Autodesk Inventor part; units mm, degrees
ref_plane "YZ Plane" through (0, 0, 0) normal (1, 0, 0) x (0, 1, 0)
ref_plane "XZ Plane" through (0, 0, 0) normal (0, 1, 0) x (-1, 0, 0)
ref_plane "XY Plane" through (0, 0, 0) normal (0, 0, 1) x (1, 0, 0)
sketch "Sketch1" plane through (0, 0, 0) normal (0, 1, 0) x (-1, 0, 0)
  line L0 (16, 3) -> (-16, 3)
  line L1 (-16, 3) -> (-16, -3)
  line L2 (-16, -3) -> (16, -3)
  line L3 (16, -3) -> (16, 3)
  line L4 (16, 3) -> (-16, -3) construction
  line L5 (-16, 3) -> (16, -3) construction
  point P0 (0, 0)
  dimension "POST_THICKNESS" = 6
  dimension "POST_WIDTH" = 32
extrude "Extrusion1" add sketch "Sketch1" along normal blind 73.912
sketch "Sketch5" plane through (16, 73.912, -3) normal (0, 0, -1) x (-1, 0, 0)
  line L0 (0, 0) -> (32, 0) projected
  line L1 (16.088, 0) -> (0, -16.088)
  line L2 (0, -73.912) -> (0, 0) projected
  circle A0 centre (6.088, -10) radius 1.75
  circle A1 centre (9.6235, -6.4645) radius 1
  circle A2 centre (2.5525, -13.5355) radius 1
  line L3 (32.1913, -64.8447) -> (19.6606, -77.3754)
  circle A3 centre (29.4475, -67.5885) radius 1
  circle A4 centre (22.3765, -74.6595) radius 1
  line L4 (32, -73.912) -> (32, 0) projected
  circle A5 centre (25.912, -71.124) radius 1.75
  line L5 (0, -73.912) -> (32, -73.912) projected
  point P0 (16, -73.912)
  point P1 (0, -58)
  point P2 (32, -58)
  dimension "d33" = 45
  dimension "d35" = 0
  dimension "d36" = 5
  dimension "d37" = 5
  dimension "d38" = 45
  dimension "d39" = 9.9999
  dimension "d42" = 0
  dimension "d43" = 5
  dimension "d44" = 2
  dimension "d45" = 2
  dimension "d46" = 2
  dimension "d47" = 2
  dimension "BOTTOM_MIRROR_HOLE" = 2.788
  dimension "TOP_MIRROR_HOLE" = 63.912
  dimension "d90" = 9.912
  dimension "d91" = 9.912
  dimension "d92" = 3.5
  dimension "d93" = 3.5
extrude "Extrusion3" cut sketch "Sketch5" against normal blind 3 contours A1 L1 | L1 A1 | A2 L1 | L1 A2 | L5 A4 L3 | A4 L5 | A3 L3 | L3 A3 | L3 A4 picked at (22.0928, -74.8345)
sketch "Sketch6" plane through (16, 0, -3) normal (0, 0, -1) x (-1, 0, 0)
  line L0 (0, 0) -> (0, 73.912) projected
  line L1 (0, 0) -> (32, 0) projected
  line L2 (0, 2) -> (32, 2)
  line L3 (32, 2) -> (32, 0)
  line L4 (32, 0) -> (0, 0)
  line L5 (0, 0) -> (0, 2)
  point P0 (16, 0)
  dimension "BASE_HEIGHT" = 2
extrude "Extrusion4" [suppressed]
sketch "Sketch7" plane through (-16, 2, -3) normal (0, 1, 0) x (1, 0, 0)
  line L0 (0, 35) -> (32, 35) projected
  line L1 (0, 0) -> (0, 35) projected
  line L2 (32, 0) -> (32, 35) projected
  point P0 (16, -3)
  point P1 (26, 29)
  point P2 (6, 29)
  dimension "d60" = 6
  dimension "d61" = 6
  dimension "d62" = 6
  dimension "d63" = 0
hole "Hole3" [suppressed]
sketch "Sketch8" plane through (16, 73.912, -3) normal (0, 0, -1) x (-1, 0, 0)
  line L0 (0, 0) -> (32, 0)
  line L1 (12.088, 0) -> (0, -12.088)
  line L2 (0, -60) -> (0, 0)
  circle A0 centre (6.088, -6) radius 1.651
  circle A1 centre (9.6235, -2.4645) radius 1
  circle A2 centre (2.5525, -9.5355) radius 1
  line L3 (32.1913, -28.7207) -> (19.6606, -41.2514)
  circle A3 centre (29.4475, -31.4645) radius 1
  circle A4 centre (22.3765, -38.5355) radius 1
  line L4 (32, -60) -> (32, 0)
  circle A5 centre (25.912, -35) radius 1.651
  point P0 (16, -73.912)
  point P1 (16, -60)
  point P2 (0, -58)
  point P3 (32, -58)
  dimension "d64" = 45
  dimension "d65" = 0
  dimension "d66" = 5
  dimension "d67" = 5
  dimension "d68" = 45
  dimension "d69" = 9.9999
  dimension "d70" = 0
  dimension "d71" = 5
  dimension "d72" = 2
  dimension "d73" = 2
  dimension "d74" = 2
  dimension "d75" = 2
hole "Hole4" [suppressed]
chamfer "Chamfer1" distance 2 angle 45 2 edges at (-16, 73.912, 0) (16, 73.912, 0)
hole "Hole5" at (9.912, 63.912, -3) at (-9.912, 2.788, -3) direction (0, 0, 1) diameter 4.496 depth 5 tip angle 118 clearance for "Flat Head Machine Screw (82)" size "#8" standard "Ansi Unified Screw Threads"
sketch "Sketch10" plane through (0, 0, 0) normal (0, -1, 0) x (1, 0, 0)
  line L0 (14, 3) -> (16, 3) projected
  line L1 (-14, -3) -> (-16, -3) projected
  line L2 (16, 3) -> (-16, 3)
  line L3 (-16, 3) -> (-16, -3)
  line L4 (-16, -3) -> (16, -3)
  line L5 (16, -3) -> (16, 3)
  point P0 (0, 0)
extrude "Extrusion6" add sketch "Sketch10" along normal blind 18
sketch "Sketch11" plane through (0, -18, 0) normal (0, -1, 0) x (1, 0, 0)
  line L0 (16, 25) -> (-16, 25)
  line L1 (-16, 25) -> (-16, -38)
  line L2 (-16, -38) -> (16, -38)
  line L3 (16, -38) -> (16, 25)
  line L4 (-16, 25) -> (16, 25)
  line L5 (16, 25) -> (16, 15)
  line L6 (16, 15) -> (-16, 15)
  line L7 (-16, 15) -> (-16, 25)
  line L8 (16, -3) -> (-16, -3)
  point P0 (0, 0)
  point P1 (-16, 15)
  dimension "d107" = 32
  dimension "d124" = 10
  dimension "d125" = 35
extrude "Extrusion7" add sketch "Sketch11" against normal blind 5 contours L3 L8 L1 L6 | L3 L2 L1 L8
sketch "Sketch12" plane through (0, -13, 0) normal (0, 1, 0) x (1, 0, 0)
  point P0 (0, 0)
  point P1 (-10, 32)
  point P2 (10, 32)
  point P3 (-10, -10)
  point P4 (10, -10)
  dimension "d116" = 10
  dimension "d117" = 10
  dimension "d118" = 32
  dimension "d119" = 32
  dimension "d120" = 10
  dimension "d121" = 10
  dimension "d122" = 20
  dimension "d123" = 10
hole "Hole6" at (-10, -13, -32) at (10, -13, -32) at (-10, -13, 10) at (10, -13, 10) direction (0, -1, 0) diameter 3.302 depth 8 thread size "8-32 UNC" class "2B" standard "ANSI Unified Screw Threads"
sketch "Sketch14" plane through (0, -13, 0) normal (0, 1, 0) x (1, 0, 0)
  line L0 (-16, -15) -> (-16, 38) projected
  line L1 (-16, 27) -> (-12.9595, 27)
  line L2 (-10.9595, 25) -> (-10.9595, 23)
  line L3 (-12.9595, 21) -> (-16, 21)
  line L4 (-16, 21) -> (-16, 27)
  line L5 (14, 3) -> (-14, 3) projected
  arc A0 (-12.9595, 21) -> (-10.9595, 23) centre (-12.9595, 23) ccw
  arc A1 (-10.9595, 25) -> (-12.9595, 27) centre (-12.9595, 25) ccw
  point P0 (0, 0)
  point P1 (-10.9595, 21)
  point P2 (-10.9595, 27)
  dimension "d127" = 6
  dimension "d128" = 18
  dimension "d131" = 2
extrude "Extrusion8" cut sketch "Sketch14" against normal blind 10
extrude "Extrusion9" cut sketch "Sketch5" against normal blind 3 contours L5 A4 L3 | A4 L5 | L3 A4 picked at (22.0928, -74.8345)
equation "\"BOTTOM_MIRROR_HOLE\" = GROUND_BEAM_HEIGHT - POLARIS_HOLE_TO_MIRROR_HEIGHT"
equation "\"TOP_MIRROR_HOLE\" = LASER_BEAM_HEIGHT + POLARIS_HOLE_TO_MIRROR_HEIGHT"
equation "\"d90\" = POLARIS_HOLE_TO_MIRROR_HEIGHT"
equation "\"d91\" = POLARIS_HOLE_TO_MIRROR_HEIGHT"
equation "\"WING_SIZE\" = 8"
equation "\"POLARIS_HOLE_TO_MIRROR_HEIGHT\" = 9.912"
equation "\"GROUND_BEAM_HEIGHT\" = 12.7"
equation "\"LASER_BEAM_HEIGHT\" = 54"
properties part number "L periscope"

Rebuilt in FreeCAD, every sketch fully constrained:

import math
import FreeCAD as App
import Part
import Sketcher

V = App.Vector


def edges_at(feature, points):
    """Names of the edges that pass closest to the given points."""
    edges = feature.Shape.Edges
    near = lambda p: min(range(len(edges)), key=lambda i: edges[i].distToShape(Part.Vertex(*p))[0])
    return sorted({f"Edge{near(p) + 1}" for p in points})

doc = App.newDocument("Part")
body = doc.addObject("PartDesign::Body", "Body")

sketch1 = body.newObject("Sketcher::SketchObject", "Sketch")
sketch1.AttachmentSupport = (doc.getObject("XZ_Plane"), [""])
sketch1.MapMode = "FlatFace"
sketch1.addGeometry(Part.LineSegment(V(-16, -3, 0), V(-16, 3, 0)), False)
sketch1.addGeometry(Part.LineSegment(V(-16, 3, 0), V(16, 3, 0)), False)
sketch1.addGeometry(Part.LineSegment(V(16, 3, 0), V(16, -3, 0)), False)
sketch1.addGeometry(Part.LineSegment(V(16, -3, 0), V(-16, -3, 0)), False)
sketch1.addConstraint(Sketcher.Constraint("Coincident", 0, 2, 1, 1))
sketch1.addConstraint(Sketcher.Constraint("Coincident", 1, 2, 2, 1))
sketch1.addConstraint(Sketcher.Constraint("Coincident", 2, 2, 3, 1))
sketch1.addConstraint(Sketcher.Constraint("Coincident", 3, 2, 0, 1))
sketch1.addConstraint(Sketcher.Constraint("Vertical", 0))
sketch1.addConstraint(Sketcher.Constraint("Horizontal", 1))
sketch1.addConstraint(Sketcher.Constraint("Vertical", 2))
sketch1.addConstraint(Sketcher.Constraint("Horizontal", 3))
sketch1.addConstraint(Sketcher.Constraint("Symmetric", 0, 2, 2, 2, -1, 1))
sketch1.addConstraint(Sketcher.Constraint("DistanceX", 1, 1, 1, 2, 32.0))
sketch1.addConstraint(Sketcher.Constraint("DistanceY", 0, 1, 0, 2, 6.0))
pad1 = body.newObject("PartDesign::Pad", "Pad")
pad1.Profile = sketch1
pad1.Length = 73.912
pad1.Reversed = True

sketch2 = body.newObject("Sketcher::SketchObject", "Sketch001")
sketch2.AttachmentSupport = (doc.getObject("XY_Plane"), [""])
sketch2.MapMode = "FlatFace"
sketch2.AttachmentOffset = App.Placement(V(0, 0, -3), App.Rotation())
sketch2.addGeometry(Part.Circle(V(6.3765, 67.4475, 0), V(0, 0, 1), 1), False)
sketch2.addGeometry(Part.Circle(V(13.4475, 60.3765, 0), V(0, 0, 1), 1), False)
sketch2.addGeometry(Part.Circle(V(-6.3765, -0.7475, 0), V(0, 0, 1), 1), False)
sketch2.addGeometry(Part.Circle(V(-13.4475, 6.3235, 0), V(0, 0, 1), 1), False)
sketch2.addConstraint(Sketcher.Constraint("Equal", 0, 1))
sketch2.addConstraint(Sketcher.Constraint("Equal", 1, 2))
sketch2.addConstraint(Sketcher.Constraint("Equal", 2, 3))
sketch2.addConstraint(Sketcher.Constraint("Diameter", 0, 2.0))
sketch2.addConstraint(Sketcher.Constraint("DistanceX", 0, 3, 1, 3, 7.071))
sketch2.addConstraint(Sketcher.Constraint("DistanceY", 1, 3, 0, 3, 7.071))
sketch2.addConstraint(Sketcher.Constraint("DistanceX", 2, 3, 1, 3, 19.824))
sketch2.addConstraint(Sketcher.Constraint("DistanceY", 2, 3, 1, 3, 61.124))
sketch2.addConstraint(Sketcher.Constraint("DistanceX", 3, 3, 2, 3, 7.071))
sketch2.addConstraint(Sketcher.Constraint("DistanceY", 2, 3, 3, 3, 7.071))
sketch2.addConstraint(Sketcher.Constraint("DistanceX", -1, 1, 0, 3, 6.3765))
sketch2.addConstraint(Sketcher.Constraint("DistanceY", -1, 1, 0, 3, 67.4475))
pocket1 = body.newObject("PartDesign::Pocket", "Pocket")
pocket1.Profile = sketch2
pocket1.Length = 3
pocket1.Reversed = True
doc.recompute()

chamfer = body.newObject("PartDesign::Chamfer", "Chamfer")
chamfer.Base = (pocket1, edges_at(pocket1, [(-16, 73.912, 0), (16, 73.912, 0)]))
chamfer.Size = 2

sketch3 = body.newObject("Sketcher::SketchObject", "Sketch002")
sketch3.AttachmentSupport = (doc.getObject("XY_Plane"), [""])
sketch3.MapMode = "FlatFace"
sketch3.AttachmentOffset = App.Placement(V(0, 0, -3), App.Rotation())
sketch3.addGeometry(Part.Circle(V(9.912, 63.912, 0), V(0, 0, 1), 2.248), False)
sketch3.addGeometry(Part.Circle(V(-9.912, 2.788, 0), V(0, 0, 1), 2.248), False)
sketch3.addConstraint(Sketcher.Constraint("Equal", 0, 1))
sketch3.addConstraint(Sketcher.Constraint("Diameter", 0, 4.496))
sketch3.addConstraint(Sketcher.Constraint("DistanceX", -1, 1, 0, 3, 9.912))
sketch3.addConstraint(Sketcher.Constraint("DistanceY", -1, 1, 0, 3, 63.912))
sketch3.addConstraint(Sketcher.Constraint("DistanceX", 1, 3, -1, 1, 9.912))
sketch3.addConstraint(Sketcher.Constraint("DistanceY", -1, 1, 1, 3, 2.788))
doc.recompute()
hole = body.newObject("PartDesign::Hole", "Hole")
hole.Profile = sketch3
hole.ThreadType = "None"
hole.Diameter = 4.496
hole.DepthType = "Dimension"
hole.Depth = 5
hole.DrillPoint = "Angled"
hole.DrillPointAngle = 118
hole.Reversed = True

sketch4 = body.newObject("Sketcher::SketchObject", "Sketch003")
sketch4.AttachmentSupport = (doc.getObject("XZ_Plane"), [""])
sketch4.MapMode = "FlatFace"
sketch4.addGeometry(Part.LineSegment(V(16, 3, 0), V(-16, 3, 0)), False)
sketch4.addGeometry(Part.LineSegment(V(-16, 3, 0), V(-16, -3, 0)), False)
sketch4.addGeometry(Part.LineSegment(V(-16, -3, 0), V(16, -3, 0)), False)
sketch4.addGeometry(Part.LineSegment(V(16, -3, 0), V(16, 3, 0)), False)
sketch4.addConstraint(Sketcher.Constraint("Coincident", 0, 2, 1, 1))
sketch4.addConstraint(Sketcher.Constraint("Coincident", 1, 2, 2, 1))
sketch4.addConstraint(Sketcher.Constraint("Coincident", 2, 2, 3, 1))
sketch4.addConstraint(Sketcher.Constraint("Coincident", 3, 2, 0, 1))
sketch4.addConstraint(Sketcher.Constraint("Horizontal", 0))
sketch4.addConstraint(Sketcher.Constraint("Vertical", 1))
sketch4.addConstraint(Sketcher.Constraint("Horizontal", 2))
sketch4.addConstraint(Sketcher.Constraint("Vertical", 3))
sketch4.addConstraint(Sketcher.Constraint("Symmetric", 0, 2, 2, 2, -1, 1))
sketch4.addConstraint(Sketcher.Constraint("DistanceX", 0, 2, 0, 1, 32.0))
sketch4.addConstraint(Sketcher.Constraint("DistanceY", 1, 2, 1, 1, 6.0))
pad2 = body.newObject("PartDesign::Pad", "Pad001")
pad2.Profile = sketch4
pad2.Length = 18

sketch5 = body.newObject("Sketcher::SketchObject", "Sketch004")
sketch5.AttachmentSupport = (doc.getObject("XZ_Plane"), [""])
sketch5.MapMode = "FlatFace"
sketch5.AttachmentOffset = App.Placement(V(0, 0, 18), App.Rotation())
sketch5.addGeometry(Part.LineSegment(V(16, 15, 0), V(-16, 15, 0)), False)
sketch5.addGeometry(Part.LineSegment(V(-16, 15, 0), V(-16, -38, 0)), False)
sketch5.addGeometry(Part.LineSegment(V(-16, -38, 0), V(16, -38, 0)), False)
sketch5.addGeometry(Part.LineSegment(V(16, -38, 0), V(16, 15, 0)), False)
sketch5.addConstraint(Sketcher.Constraint("Coincident", 0, 2, 1, 1))
sketch5.addConstraint(Sketcher.Constraint("Coincident", 1, 2, 2, 1))
sketch5.addConstraint(Sketcher.Constraint("Coincident", 2, 2, 3, 1))
sketch5.addConstraint(Sketcher.Constraint("Coincident", 3, 2, 0, 1))
sketch5.addConstraint(Sketcher.Constraint("Horizontal", 0))
sketch5.addConstraint(Sketcher.Constraint("Vertical", 1))
sketch5.addConstraint(Sketcher.Constraint("Horizontal", 2))
sketch5.addConstraint(Sketcher.Constraint("Vertical", 3))
sketch5.addConstraint(Sketcher.Constraint("DistanceX", 0, 2, 0, 1, 32.0))
sketch5.addConstraint(Sketcher.Constraint("DistanceY", 1, 2, 1, 1, 53.0))
sketch5.addConstraint(Sketcher.Constraint("DistanceX", 0, 2, -1, 1, 16.0))
sketch5.addConstraint(Sketcher.Constraint("DistanceY", -1, 1, 0, 2, 15.0))
pad3 = body.newObject("PartDesign::Pad", "Pad002")
pad3.Profile = sketch5
pad3.Length = 5
pad3.Reversed = True

sketch6 = body.newObject("Sketcher::SketchObject", "Sketch005")
sketch6.AttachmentSupport = (doc.getObject("XZ_Plane"), [""])
sketch6.MapMode = "FlatFace"
sketch6.AttachmentOffset = App.Placement(V(0, 0, 13), App.Rotation())
sketch6.addGeometry(Part.Circle(V(-10, -32, 0), V(0, 0, 1), 1.651), False)
sketch6.addGeometry(Part.Circle(V(10, -32, 0), V(0, 0, 1), 1.651), False)
sketch6.addGeometry(Part.Circle(V(-10, 10, 0), V(0, 0, 1), 1.651), False)
sketch6.addGeometry(Part.Circle(V(10, 10, 0), V(0, 0, 1), 1.651), False)
sketch6.addConstraint(Sketcher.Constraint("Equal", 0, 1))
sketch6.addConstraint(Sketcher.Constraint("Equal", 1, 2))
sketch6.addConstraint(Sketcher.Constraint("Equal", 2, 3))
sketch6.addConstraint(Sketcher.Constraint("Symmetric", 0, 3, 1, 3, -2))
sketch6.addConstraint(Sketcher.Constraint("Symmetric", 2, 3, 3, 3, -2))
sketch6.addConstraint(Sketcher.Constraint("Vertical", 0, 3, 2, 3))
sketch6.addConstraint(Sketcher.Constraint("Diameter", 0, 3.302))
sketch6.addConstraint(Sketcher.Constraint("DistanceX", 0, 3, -1, 1, 10.0))
sketch6.addConstraint(Sketcher.Constraint("DistanceY", 0, 3, -1, 1, 32.0))
sketch6.addConstraint(Sketcher.Constraint("DistanceY", -1, 1, 2, 3, 10.0))
doc.recompute()
hole2 = body.newObject("PartDesign::Hole", "Hole001")
hole2.Profile = sketch6
hole2.ThreadType = "None"
hole2.Diameter = 3.302
hole2.DepthType = "Dimension"
hole2.Depth = 8
hole2.DrillPoint = "Flat"
hole2.Reversed = True

sketch7 = body.newObject("Sketcher::SketchObject", "Sketch006")
sketch7.AttachmentSupport = (doc.getObject("XZ_Plane"), [""])
sketch7.MapMode = "FlatFace"
sketch7.AttachmentOffset = App.Placement(V(0, 0, 13), App.Rotation())
sketch7.addGeometry(Part.LineSegment(V(-16, -27, 0), V(-16, -21, 0)), False)
sketch7.addGeometry(Part.LineSegment(V(-16, -21, 0), V(-12.9595, -21, 0)), False)
sketch7.addGeometry(Part.ArcOfCircle(Part.Circle(V(-12.9595, -23, 0), V(0, 0, 1), 2), math.radians(0), math.radians(90)), False)
sketch7.addGeometry(Part.LineSegment(V(-10.9595, -23, 0), V(-10.9595, -25, 0)), False)
sketch7.addGeometry(Part.ArcOfCircle(Part.Circle(V(-12.9595, -25, 0), V(0, 0, 1), 2), math.radians(-90), math.radians(0)), False)
sketch7.addGeometry(Part.LineSegment(V(-12.9595, -27, 0), V(-16, -27, 0)), False)
sketch7.addConstraint(Sketcher.Constraint("Coincident", 0, 2, 1, 1))
sketch7.addConstraint(Sketcher.Constraint("Tangent", 1, 2, 2, 2))
sketch7.addConstraint(Sketcher.Constraint("Tangent", 2, 1, 3, 1))
sketch7.addConstraint(Sketcher.Constraint("Tangent", 3, 2, 4, 2))
sketch7.addConstraint(Sketcher.Constraint("Tangent", 4, 1, 5, 1))
sketch7.addConstraint(Sketcher.Constraint("Coincident", 5, 2, 0, 1))
sketch7.addConstraint(Sketcher.Constraint("Vertical", 0))
sketch7.addConstraint(Sketcher.Constraint("Horizontal", 1))
sketch7.addConstraint(Sketcher.Constraint("Vertical", 3))
sketch7.addConstraint(Sketcher.Constraint("Horizontal", 5))
sketch7.addConstraint(Sketcher.Constraint("Equal", 2, 4))
sketch7.addConstraint(Sketcher.Constraint("Radius", 2, 2.0))
sketch7.addConstraint(Sketcher.Constraint("DistanceY", 0, 1, 0, 2, 6.0))
sketch7.addConstraint(Sketcher.Constraint("DistanceY", 2, 3, -1, 1, 23.0))
sketch7.addConstraint(Sketcher.Constraint("DistanceX", 0, 2, -1, 1, 16.0))
sketch7.addConstraint(Sketcher.Constraint("DistanceX", 1, 1, 1, 2, 3.0405))
pocket2 = body.newObject("PartDesign::Pocket", "Pocket001")
pocket2.Profile = sketch7
pocket2.Length = 10
pocket2.Reversed = True

sketch8 = body.newObject("Sketcher::SketchObject", "Sketch007")
sketch8.AttachmentSupport = (doc.getObject("XY_Plane"), [""])
sketch8.MapMode = "FlatFace"
sketch8.AttachmentOffset = App.Placement(V(0, 0, -3), App.Rotation())
sketch8.addGeometry(Part.Circle(V(-6.3765, -0.7475, 0), V(0, 0, 1), 1), False)
sketch8.addConstraint(Sketcher.Constraint("Diameter", 0, 2.0))
sketch8.addConstraint(Sketcher.Constraint("DistanceX", 0, 3, -1, 1, 6.3765))
sketch8.addConstraint(Sketcher.Constraint("DistanceY", 0, 3, -1, 1, 0.7475))
pocket3 = body.newObject("PartDesign::Pocket", "Pocket002")
pocket3.Profile = sketch8
pocket3.Length = 3
pocket3.Reversed = True

doc.recompute()
